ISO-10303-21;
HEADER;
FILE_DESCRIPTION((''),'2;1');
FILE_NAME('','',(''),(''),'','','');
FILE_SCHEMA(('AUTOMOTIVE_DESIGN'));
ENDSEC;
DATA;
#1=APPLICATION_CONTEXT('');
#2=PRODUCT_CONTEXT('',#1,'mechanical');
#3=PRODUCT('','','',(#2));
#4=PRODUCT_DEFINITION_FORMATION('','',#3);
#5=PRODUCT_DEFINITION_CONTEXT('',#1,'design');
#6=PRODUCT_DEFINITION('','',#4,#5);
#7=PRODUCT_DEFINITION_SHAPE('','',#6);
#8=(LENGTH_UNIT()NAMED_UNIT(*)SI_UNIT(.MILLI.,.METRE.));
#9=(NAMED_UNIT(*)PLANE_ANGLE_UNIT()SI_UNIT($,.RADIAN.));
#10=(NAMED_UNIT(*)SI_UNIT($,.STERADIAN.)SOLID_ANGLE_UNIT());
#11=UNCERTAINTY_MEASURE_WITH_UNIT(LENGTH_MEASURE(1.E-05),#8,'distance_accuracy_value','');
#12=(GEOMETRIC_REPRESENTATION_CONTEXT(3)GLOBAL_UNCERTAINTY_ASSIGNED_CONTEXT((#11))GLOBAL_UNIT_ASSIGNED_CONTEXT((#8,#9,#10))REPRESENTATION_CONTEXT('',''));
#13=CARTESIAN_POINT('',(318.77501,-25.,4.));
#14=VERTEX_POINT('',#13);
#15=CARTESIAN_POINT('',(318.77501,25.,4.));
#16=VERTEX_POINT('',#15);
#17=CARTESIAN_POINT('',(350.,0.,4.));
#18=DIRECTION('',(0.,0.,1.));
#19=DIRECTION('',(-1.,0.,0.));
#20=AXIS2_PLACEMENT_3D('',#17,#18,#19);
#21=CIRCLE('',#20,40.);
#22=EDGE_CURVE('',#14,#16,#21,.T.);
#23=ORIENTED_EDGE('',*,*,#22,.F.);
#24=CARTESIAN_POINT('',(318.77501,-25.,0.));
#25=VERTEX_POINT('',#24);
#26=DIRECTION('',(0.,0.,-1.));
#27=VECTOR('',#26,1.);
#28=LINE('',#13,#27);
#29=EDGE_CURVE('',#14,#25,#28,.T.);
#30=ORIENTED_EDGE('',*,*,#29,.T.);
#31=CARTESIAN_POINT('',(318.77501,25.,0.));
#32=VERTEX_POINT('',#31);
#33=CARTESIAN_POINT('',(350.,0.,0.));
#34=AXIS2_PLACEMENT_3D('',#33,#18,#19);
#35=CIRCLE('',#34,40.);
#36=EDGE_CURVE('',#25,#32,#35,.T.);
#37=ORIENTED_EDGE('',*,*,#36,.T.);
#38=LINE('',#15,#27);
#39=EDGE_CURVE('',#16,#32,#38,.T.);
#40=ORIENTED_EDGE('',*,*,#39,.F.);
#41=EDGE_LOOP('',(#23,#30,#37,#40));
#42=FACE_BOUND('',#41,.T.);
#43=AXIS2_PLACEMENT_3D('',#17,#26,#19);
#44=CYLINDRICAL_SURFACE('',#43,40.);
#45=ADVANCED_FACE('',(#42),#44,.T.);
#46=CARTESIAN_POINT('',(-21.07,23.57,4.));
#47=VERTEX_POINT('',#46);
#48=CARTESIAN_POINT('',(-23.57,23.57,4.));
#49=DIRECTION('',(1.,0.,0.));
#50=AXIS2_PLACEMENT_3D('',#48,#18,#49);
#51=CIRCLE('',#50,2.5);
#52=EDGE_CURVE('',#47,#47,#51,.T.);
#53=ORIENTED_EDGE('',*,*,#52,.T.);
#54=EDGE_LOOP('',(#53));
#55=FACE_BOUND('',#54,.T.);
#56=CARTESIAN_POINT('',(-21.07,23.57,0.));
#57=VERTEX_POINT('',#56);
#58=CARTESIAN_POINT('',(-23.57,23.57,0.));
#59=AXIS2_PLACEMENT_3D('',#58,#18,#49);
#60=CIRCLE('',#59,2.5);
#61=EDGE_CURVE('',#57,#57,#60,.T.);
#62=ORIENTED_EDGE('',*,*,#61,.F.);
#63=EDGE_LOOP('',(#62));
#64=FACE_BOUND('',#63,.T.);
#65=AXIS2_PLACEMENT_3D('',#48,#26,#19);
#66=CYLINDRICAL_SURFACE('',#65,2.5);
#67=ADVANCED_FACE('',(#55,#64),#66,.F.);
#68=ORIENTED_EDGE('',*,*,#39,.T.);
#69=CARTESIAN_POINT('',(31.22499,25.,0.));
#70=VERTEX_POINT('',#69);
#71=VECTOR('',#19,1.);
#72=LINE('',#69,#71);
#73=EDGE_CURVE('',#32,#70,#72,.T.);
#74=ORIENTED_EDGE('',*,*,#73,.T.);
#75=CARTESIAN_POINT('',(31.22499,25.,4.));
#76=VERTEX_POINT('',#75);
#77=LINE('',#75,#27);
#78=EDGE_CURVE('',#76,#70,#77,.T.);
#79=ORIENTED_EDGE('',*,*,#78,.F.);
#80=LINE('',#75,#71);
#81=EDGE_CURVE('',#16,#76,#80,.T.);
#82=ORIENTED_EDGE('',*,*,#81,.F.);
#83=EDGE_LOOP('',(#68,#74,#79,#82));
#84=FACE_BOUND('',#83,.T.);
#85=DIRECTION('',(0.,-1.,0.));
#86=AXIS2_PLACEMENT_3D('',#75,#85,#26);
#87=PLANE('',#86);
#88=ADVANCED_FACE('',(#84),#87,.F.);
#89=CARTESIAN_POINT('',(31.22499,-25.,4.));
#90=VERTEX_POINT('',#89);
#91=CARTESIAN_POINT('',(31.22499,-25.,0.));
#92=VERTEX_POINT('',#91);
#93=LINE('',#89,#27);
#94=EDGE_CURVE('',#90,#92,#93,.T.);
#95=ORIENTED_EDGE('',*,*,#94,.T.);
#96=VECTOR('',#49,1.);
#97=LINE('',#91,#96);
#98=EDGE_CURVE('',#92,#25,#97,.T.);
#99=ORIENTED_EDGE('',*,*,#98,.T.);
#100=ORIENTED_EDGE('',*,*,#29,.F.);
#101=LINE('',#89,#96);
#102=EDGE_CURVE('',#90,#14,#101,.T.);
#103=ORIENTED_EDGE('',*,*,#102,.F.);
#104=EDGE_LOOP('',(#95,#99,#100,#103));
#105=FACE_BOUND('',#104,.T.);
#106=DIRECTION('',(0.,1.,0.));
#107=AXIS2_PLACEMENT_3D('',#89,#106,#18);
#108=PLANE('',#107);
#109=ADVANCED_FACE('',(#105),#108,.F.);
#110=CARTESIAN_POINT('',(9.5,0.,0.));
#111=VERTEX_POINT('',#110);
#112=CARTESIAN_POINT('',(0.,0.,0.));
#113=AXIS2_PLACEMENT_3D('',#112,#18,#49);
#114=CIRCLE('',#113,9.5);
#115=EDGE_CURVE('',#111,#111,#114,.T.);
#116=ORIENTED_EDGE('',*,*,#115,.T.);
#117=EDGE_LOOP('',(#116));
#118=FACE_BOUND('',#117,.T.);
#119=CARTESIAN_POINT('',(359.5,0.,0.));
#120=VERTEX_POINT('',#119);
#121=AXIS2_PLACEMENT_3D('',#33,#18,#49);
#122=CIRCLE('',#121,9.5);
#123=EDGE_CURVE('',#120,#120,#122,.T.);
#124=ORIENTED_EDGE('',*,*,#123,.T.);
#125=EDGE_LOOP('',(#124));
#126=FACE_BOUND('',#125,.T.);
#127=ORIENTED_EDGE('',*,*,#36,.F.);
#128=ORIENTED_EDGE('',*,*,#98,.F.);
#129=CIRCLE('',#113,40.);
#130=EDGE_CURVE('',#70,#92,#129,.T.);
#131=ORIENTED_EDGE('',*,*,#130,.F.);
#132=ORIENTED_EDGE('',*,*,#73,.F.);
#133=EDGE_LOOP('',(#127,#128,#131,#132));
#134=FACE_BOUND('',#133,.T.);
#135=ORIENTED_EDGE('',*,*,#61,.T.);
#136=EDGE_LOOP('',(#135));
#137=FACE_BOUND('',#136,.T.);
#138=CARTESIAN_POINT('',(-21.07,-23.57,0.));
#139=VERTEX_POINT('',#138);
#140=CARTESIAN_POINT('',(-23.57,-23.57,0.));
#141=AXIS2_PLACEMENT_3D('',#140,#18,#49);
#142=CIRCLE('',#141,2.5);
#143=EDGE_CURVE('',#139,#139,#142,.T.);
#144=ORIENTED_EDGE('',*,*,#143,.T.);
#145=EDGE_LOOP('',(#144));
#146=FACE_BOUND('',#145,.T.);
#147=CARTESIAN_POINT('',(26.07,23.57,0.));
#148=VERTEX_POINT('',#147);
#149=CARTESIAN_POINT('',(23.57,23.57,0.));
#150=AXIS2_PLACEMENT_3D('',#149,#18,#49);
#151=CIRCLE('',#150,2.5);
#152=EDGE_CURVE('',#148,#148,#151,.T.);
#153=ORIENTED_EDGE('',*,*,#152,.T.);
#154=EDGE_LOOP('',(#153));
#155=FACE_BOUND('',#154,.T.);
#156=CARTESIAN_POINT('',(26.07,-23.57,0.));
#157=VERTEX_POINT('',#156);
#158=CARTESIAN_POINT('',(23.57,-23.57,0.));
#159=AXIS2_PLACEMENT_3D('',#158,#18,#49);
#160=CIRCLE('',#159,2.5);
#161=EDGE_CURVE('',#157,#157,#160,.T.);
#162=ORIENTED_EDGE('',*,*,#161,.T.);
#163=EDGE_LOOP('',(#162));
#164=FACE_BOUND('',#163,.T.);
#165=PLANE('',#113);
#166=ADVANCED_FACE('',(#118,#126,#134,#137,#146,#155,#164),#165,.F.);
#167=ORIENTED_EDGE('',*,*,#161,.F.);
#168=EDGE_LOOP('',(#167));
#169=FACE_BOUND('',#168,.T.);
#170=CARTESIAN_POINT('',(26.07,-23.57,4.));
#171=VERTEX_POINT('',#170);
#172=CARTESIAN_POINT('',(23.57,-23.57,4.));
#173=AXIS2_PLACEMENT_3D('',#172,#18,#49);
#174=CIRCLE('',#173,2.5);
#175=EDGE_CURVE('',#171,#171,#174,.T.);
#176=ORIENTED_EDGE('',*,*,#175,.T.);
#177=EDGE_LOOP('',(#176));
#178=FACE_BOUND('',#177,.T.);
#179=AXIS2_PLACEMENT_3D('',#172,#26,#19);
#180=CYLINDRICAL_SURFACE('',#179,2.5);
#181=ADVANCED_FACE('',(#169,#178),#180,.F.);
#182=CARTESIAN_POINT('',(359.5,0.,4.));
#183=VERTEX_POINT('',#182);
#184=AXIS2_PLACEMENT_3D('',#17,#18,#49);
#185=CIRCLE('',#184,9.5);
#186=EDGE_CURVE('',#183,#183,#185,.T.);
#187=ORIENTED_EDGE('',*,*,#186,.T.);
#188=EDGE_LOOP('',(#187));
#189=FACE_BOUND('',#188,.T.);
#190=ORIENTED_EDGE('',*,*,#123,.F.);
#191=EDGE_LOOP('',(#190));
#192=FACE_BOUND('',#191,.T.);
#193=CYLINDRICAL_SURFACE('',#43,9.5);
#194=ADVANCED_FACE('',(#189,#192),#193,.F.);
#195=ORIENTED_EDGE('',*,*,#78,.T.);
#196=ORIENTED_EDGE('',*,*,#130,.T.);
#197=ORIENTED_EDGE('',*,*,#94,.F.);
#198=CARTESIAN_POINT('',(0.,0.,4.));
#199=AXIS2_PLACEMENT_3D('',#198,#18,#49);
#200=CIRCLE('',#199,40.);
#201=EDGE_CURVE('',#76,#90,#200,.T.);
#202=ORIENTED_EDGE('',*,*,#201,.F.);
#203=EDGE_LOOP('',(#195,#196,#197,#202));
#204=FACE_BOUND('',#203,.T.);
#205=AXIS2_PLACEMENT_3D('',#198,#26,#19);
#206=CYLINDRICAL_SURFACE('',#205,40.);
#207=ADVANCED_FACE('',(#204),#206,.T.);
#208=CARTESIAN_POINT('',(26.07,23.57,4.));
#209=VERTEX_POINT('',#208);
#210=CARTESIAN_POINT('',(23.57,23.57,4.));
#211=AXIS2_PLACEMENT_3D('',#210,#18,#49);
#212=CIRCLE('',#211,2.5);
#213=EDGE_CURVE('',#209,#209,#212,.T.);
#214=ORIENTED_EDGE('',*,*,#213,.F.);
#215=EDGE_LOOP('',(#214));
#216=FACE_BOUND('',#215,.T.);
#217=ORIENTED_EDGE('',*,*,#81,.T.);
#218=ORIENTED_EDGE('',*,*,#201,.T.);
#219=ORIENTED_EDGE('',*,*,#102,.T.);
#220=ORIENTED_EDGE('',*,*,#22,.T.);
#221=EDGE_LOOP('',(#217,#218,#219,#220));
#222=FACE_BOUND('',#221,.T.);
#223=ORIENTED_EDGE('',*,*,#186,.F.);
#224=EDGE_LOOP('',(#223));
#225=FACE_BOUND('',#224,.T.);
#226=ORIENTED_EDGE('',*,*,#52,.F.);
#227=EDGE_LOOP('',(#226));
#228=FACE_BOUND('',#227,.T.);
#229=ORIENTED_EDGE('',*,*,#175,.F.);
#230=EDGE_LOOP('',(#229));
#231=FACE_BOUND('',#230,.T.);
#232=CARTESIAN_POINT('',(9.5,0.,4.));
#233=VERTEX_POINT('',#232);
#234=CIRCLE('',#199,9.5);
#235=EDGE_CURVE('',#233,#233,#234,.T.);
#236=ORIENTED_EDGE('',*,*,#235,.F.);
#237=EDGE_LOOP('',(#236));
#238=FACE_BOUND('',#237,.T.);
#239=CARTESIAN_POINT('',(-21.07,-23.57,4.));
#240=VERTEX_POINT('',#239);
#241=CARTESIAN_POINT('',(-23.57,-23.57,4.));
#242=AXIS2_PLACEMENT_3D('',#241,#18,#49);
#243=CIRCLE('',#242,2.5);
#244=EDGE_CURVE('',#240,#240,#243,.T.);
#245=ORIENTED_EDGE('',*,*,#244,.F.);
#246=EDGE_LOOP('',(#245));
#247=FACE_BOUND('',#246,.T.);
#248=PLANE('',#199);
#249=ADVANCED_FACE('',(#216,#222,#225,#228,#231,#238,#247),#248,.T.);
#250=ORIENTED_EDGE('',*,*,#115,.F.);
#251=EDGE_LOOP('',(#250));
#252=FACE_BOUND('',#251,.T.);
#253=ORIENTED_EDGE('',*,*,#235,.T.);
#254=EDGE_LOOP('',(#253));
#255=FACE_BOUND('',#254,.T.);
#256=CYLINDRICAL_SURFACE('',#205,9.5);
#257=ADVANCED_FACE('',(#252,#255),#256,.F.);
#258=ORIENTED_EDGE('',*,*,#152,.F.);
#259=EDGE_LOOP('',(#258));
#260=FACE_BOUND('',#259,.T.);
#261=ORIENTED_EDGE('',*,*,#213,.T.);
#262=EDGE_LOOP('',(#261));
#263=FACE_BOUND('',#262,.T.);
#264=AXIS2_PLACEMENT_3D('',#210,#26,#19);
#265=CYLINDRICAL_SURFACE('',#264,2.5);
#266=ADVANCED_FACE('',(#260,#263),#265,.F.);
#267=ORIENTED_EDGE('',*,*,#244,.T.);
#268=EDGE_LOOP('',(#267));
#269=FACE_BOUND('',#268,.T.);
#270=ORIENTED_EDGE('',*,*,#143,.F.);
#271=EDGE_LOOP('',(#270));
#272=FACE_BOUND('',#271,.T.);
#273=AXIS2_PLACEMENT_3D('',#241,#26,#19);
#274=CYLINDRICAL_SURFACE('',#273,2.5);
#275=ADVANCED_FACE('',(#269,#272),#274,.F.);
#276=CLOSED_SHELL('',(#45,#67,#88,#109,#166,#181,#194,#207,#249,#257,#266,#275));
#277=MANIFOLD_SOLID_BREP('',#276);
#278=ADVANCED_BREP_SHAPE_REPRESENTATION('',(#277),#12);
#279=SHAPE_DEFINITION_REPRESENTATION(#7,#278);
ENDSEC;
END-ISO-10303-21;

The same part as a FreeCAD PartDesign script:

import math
import FreeCAD as App
import Part
import Sketcher

V = App.Vector
Q = App.Units.Quantity

doc = App.newDocument("Part")
body = doc.addObject("PartDesign::Body", "Body")

sketch1 = body.newObject("Sketcher::SketchObject", "Sketch")
sketch1.AttachmentSupport = (doc.getObject("XY_Plane"), [""])
sketch1.MapMode = "FlatFace"
sketch1.addGeometry([
    Part.LineSegment(V(318.8, 25, 0), V(31.2, 25, 0)),
    Part.ArcOfCircle(Part.Circle(V(0, 0, 0), V(0, 0, 1), 40), math.radians(39), math.radians(321)),
    Part.LineSegment(V(31.2, -25, 0), V(318.8, -25, 0)),
    Part.ArcOfCircle(Part.Circle(V(350, 0, 0), V(0, 0, 1), 40), math.radians(-141), math.radians(141)),
    Part.Circle(V(23.6, -23.6, 0), V(0, 0, 1), 2.5),
    Part.Circle(V(-23.6, -23.6, 0), V(0, 0, 1), 2.5),
    Part.Circle(V(350, 0, 0), V(0, 0, 1), 9.5),
    Part.Circle(V(0, 0, 0), V(0, 0, 1), 9.5),
    Part.Circle(V(23.6, 23.6, 0), V(0, 0, 1), 2.5),
    Part.Circle(V(-23.6, 23.6, 0), V(0, 0, 1), 2.5),
], False)
sketch1.addConstraint([
    Sketcher.Constraint("Coincident", 0, 2, 1, 1),
    Sketcher.Constraint("Coincident", 1, 2, 2, 1),
    Sketcher.Constraint("Coincident", 2, 2, 3, 1),
    Sketcher.Constraint("Coincident", 3, 2, 0, 1),
    Sketcher.Constraint("Horizontal", 0),
    Sketcher.Constraint("Horizontal", 2),
    Sketcher.Constraint("Coincident", 1, 3, -1, 1),
    Sketcher.Constraint("Coincident", 7, 3, -1, 1),
    Sketcher.Constraint("Coincident", 6, 3, 3, 3),
    Sketcher.Constraint("Equal", 1, 3),
    Sketcher.Constraint("Equal", 4, 5),
    Sketcher.Constraint("Equal", 6, 7),
    Sketcher.Constraint("Equal", 5, 8),
    Sketcher.Constraint("Equal", 8, 9),
    Sketcher.Constraint("Symmetric", 5, 3, 8, 3, -1, 1),
    Sketcher.Constraint("Symmetric", 4, 3, 9, 3, -1, 1),
    Sketcher.Constraint("Symmetric", 4, 3, 5, 3, -2),
    Sketcher.Constraint("Symmetric", 2, 2, 3, 2, -1),
    Sketcher.Constraint("Diameter", 4, Q("5 mm")),
    Sketcher.Constraint("Diameter", 6, Q("19 mm")),
    Sketcher.Constraint("Radius", 1, Q("40 mm")),
    Sketcher.Constraint("DistanceX", -1, 1, 3, 3, Q("350 mm")),
    Sketcher.Constraint("DistanceY", -1, 1, 0, 2, Q("25 mm")),
    Sketcher.Constraint("DistanceX", -1, 1, 4, 3, Q("23.57 mm")),
    Sketcher.Constraint("DistanceY", 4, 3, -1, 1, Q("23.57 mm")),
])
pad1 = body.newObject("PartDesign::Pad", "Pad")
pad1.Profile = sketch1
pad1.Length = 4

doc.recompute()
